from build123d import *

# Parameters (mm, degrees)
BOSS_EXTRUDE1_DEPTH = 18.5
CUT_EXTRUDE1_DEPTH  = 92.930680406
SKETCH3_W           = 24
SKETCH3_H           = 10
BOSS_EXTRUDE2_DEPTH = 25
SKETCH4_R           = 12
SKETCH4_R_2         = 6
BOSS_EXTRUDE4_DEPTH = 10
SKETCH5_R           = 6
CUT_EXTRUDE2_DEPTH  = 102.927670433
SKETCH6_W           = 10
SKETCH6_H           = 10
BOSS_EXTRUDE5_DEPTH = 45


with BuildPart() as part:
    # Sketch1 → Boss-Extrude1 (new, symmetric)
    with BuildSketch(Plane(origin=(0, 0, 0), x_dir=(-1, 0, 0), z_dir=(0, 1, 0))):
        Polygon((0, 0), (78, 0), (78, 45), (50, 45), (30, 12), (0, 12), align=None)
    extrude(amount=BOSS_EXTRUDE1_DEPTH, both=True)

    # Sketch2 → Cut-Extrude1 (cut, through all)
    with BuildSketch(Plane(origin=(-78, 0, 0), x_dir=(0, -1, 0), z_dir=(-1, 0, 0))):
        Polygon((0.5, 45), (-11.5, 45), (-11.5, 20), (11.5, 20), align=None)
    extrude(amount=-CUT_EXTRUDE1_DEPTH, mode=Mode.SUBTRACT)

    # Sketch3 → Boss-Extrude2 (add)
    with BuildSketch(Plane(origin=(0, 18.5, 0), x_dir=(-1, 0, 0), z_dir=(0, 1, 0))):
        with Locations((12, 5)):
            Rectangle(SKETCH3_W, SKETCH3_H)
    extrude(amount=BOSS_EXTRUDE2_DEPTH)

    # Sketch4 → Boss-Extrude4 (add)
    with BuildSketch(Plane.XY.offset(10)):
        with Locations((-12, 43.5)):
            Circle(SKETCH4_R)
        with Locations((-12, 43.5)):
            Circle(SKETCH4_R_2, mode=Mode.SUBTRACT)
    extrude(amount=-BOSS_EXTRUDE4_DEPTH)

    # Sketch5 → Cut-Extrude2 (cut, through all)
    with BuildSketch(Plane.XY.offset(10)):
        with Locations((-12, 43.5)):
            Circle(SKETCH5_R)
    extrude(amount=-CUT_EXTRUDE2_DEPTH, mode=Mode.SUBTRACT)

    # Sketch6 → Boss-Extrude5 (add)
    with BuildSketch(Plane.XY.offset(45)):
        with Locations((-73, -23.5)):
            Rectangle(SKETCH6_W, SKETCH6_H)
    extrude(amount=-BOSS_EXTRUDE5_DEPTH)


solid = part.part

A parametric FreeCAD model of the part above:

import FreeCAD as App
import Part
import Sketcher

V = App.Vector
Q = App.Units.Quantity


def add_polygon(sketch, points):
    """Adds a closed chain of lines whose ends are joined by coincident constraints."""
    first, n = sketch.GeometryCount, len(points)
    for a, b in zip(points, points[1:] + points[:1]):
        sketch.addGeometry(Part.LineSegment(App.Vector(*a, 0), App.Vector(*b, 0)), False)
    for i in range(n):
        sketch.addConstraint(Sketcher.Constraint("Coincident", first + i, 2, first + (i + 1) % n, 1))

doc = App.newDocument("Part")
params = doc.addObject("Spreadsheet::Sheet", "Params")
for row, (alias, value) in enumerate([
    ("sketch1_width", "78 mm"),
    ("sketch1_width2", "28 mm"),
    ("sketch1_width3", "30 mm"),
    ("sketch1_height", "45 mm"),
    ("sketch1_height2", "12 mm"),
    ("pad1_length", "37 mm"),
    ("sketch2_width", "12 mm"),
    ("sketch2_width2", "23 mm"),
    ("sketch2_height", "25 mm"),
    ("sketch3_width", "24 mm"),
    ("sketch3_height", "10 mm"),
    ("pad2_length", "25 mm"),
    ("sketch4_diameter", "24 mm"),
    ("sketch4_diameter2", "12 mm"),
    ("pad3_length", "10 mm"),
    ("sketch5_diameter", "12 mm"),
    ("sketch6_width", "10 mm"),
    ("pad4_length", "45 mm"),
], start=1):
    params.set(f"A{row}", alias)
    params.set(f"B{row}", "=" + value)
    params.setAlias(f"B{row}", alias)

body = doc.addObject("PartDesign::Body", "Body")

# Sketch on XZ plane
sketch1 = body.newObject("Sketcher::SketchObject", "Sketch")
sketch1.AttachmentSupport = (doc.getObject("XZ_Plane"), [""])
sketch1.MapMode = "FlatFace"
add_polygon(sketch1, [(0, 0), (-78, 0), (-78, 45), (-50, 45), (-30, 12), (0, 12)])  # lines 0-5
sketch1.addConstraint([
    Sketcher.Constraint("Horizontal", 0),
    Sketcher.Constraint("Vertical", 1),
    Sketcher.Constraint("Horizontal", 2),
    Sketcher.Constraint("Horizontal", 4),
    Sketcher.Constraint("Vertical", 5),
    Sketcher.Constraint("Coincident", 5, 2, -1, 1),
    Sketcher.Constraint("DistanceX", 0, 2, 0, 1, Q("78 mm")),
    Sketcher.Constraint("DistanceX", 2, 1, 2, 2, Q("28 mm")),
    Sketcher.Constraint("DistanceX", 4, 1, 4, 2, Q("30 mm")),
    Sketcher.Constraint("DistanceY", 1, 1, 1, 2, Q("45 mm")),
    Sketcher.Constraint("DistanceY", 5, 2, 5, 1, Q("12 mm")),
])
sketch1.setExpression("Constraints[12]", "Params.sketch1_width")
sketch1.setExpression("Constraints[13]", "Params.sketch1_width2")
sketch1.setExpression("Constraints[14]", "Params.sketch1_width3")
sketch1.setExpression("Constraints[15]", "Params.sketch1_height")
sketch1.setExpression("Constraints[16]", "Params.sketch1_height2")
pad1 = body.newObject("PartDesign::Pad", "Pad")
pad1.Profile = sketch1
pad1.setExpression("Length", "Params.pad1_length")
pad1.Midplane = True

# Sketch on YZ plane
sketch2 = body.newObject("Sketcher::SketchObject", "Sketch001")
sketch2.AttachmentSupport = (doc.getObject("YZ_Plane"), [""])
sketch2.MapMode = "FlatFace"
sketch2.AttachmentOffset = App.Placement(V(0, 0, -78), App.Rotation())
add_polygon(sketch2, [(-0.5, 45), (11.5, 45), (11.5, 20), (-11.5, 20)])  # lines 0-3
sketch2.addConstraint([
    Sketcher.Constraint("Horizontal", 0),
    Sketcher.Constraint("Vertical", 1),
    Sketcher.Constraint("Horizontal", 2),
    Sketcher.Constraint("DistanceX", 0, 1, 0, 2, Q("12 mm")),
    Sketcher.Constraint("DistanceX", 2, 2, 2, 1, Q("23 mm")),
    Sketcher.Constraint("DistanceY", 1, 2, 1, 1, Q("25 mm")),
    Sketcher.Constraint("DistanceY", -1, 1, 0, 2, Q("45 mm")),
    Sketcher.Constraint("DistanceX", -1, 1, 0, 2, Q("11.5 mm")),
])
sketch2.setExpression("Constraints[7]", "Params.sketch2_width")
sketch2.setExpression("Constraints[8]", "Params.sketch2_width2")
sketch2.setExpression("Constraints[9]", "Params.sketch2_height")
pocket1 = body.newObject("PartDesign::Pocket", "Pocket")
pocket1.Profile = sketch2
pocket1.Type = "ThroughAll"
pocket1.Reversed = True

# Sketch on XZ plane
sketch3 = body.newObject("Sketcher::SketchObject", "Sketch002")
sketch3.AttachmentSupport = (doc.getObject("XZ_Plane"), [""])
sketch3.MapMode = "FlatFace"
sketch3.AttachmentOffset = App.Placement(V(0, 0, -18.5), App.Rotation())
add_polygon(sketch3, [(0, 10), (0, 0), (-24, 0), (-24, 10)])  # lines 0-3
sketch3.addConstraint([
    Sketcher.Constraint("Vertical", 0),
    Sketcher.Constraint("Horizontal", 1),
    Sketcher.Constraint("Vertical", 2),
    Sketcher.Constraint("Horizontal", 3),
    Sketcher.Constraint("Coincident", 0, 2, -1, 1),
    Sketcher.Constraint("DistanceX", 1, 2, 1, 1, Q("24 mm")),
    Sketcher.Constraint("DistanceY", 0, 2, 0, 1, Q("10 mm")),
])
sketch3.setExpression("Constraints[9]", "Params.sketch3_width")
sketch3.setExpression("Constraints[10]", "Params.sketch3_height")
pad2 = body.newObject("PartDesign::Pad", "Pad001")
pad2.Profile = sketch3
pad2.setExpression("Length", "Params.pad2_length")
pad2.Reversed = True

# Sketch on XY plane
sketch4 = body.newObject("Sketcher::SketchObject", "Sketch003")
sketch4.AttachmentSupport = (doc.getObject("XY_Plane"), [""])
sketch4.MapMode = "FlatFace"
sketch4.AttachmentOffset = App.Placement(V(0, 0, 10), App.Rotation())
sketch4.addGeometry([
    Part.Circle(V(-12, 43.5, 0), V(0, 0, 1), 12),
    Part.Circle(V(-12, 43.5, 0), V(0, 0, 1), 6),
], False)
sketch4.addConstraint([
    Sketcher.Constraint("Coincident", 1, 3, 0, 3),
    Sketcher.Constraint("Diameter", 0, Q("24 mm")),
    Sketcher.Constraint("Diameter", 1, Q("12 mm")),
    Sketcher.Constraint("DistanceX", 0, 3, -1, 1, Q("12 mm")),
    Sketcher.Constraint("DistanceY", -1, 1, 0, 3, Q("43.5 mm")),
])
sketch4.setExpression("Constraints[1]", "Params.sketch4_diameter")
sketch4.setExpression("Constraints[2]", "Params.sketch4_diameter2")
pad3 = body.newObject("PartDesign::Pad", "Pad002")
pad3.Profile = sketch4
pad3.setExpression("Length", "Params.pad3_length")
pad3.Reversed = True

# Sketch on XY plane
sketch5 = body.newObject("Sketcher::SketchObject", "Sketch004")
sketch5.AttachmentSupport = (doc.getObject("XY_Plane"), [""])
sketch5.MapMode = "FlatFace"
sketch5.AttachmentOffset = App.Placement(V(0, 0, 10), App.Rotation())
sketch5.addGeometry(Part.Circle(V(-12, 43.5, 0), V(0, 0, 1), 6), False)
sketch5.addConstraint([
    Sketcher.Constraint("Diameter", 0, Q("12 mm")),
    Sketcher.Constraint("DistanceX", 0, 3, -1, 1, Q("12 mm")),
    Sketcher.Constraint("DistanceY", -1, 1, 0, 3, Q("43.5 mm")),
])
sketch5.setExpression("Constraints[0]", "Params.sketch5_diameter")
pocket2 = body.newObject("PartDesign::Pocket", "Pocket001")
pocket2.Profile = sketch5
pocket2.Type = "ThroughAll"

# Sketch on XY plane
sketch6 = body.newObject("Sketcher::SketchObject", "Sketch005")
sketch6.AttachmentSupport = (doc.getObject("XY_Plane"), [""])
sketch6.MapMode = "FlatFace"
sketch6.AttachmentOffset = App.Placement(V(0, 0, 45), App.Rotation())
add_polygon(sketch6, [(-78, -18.5), (-78, -28.5), (-68, -28.5), (-68, -18.5)])  # lines 0-3
sketch6.addConstraint([
    Sketcher.Constraint("Vertical", 0),
    Sketcher.Constraint("Horizontal", 1),
    Sketcher.Constraint("Vertical", 2),
    Sketcher.Constraint("Horizontal", 3),
    Sketcher.Constraint("Equal", 3, 0),
    Sketcher.Constraint("DistanceX", 1, 1, 1, 2, Q("10 mm")),
    Sketcher.Constraint("DistanceX", 0, 2, -1, 1, Q("78 mm")),
    Sketcher.Constraint("DistanceY", 0, 2, -1, 1, Q("28.5 mm")),
])
sketch6.setExpression("Constraints[9]", "Params.sketch6_width")
pad4 = body.newObject("PartDesign::Pad", "Pad003")
pad4.Profile = sketch6
pad4.setExpression("Length", "Params.pad4_length")
pad4.Reversed = True

doc.recompute()
